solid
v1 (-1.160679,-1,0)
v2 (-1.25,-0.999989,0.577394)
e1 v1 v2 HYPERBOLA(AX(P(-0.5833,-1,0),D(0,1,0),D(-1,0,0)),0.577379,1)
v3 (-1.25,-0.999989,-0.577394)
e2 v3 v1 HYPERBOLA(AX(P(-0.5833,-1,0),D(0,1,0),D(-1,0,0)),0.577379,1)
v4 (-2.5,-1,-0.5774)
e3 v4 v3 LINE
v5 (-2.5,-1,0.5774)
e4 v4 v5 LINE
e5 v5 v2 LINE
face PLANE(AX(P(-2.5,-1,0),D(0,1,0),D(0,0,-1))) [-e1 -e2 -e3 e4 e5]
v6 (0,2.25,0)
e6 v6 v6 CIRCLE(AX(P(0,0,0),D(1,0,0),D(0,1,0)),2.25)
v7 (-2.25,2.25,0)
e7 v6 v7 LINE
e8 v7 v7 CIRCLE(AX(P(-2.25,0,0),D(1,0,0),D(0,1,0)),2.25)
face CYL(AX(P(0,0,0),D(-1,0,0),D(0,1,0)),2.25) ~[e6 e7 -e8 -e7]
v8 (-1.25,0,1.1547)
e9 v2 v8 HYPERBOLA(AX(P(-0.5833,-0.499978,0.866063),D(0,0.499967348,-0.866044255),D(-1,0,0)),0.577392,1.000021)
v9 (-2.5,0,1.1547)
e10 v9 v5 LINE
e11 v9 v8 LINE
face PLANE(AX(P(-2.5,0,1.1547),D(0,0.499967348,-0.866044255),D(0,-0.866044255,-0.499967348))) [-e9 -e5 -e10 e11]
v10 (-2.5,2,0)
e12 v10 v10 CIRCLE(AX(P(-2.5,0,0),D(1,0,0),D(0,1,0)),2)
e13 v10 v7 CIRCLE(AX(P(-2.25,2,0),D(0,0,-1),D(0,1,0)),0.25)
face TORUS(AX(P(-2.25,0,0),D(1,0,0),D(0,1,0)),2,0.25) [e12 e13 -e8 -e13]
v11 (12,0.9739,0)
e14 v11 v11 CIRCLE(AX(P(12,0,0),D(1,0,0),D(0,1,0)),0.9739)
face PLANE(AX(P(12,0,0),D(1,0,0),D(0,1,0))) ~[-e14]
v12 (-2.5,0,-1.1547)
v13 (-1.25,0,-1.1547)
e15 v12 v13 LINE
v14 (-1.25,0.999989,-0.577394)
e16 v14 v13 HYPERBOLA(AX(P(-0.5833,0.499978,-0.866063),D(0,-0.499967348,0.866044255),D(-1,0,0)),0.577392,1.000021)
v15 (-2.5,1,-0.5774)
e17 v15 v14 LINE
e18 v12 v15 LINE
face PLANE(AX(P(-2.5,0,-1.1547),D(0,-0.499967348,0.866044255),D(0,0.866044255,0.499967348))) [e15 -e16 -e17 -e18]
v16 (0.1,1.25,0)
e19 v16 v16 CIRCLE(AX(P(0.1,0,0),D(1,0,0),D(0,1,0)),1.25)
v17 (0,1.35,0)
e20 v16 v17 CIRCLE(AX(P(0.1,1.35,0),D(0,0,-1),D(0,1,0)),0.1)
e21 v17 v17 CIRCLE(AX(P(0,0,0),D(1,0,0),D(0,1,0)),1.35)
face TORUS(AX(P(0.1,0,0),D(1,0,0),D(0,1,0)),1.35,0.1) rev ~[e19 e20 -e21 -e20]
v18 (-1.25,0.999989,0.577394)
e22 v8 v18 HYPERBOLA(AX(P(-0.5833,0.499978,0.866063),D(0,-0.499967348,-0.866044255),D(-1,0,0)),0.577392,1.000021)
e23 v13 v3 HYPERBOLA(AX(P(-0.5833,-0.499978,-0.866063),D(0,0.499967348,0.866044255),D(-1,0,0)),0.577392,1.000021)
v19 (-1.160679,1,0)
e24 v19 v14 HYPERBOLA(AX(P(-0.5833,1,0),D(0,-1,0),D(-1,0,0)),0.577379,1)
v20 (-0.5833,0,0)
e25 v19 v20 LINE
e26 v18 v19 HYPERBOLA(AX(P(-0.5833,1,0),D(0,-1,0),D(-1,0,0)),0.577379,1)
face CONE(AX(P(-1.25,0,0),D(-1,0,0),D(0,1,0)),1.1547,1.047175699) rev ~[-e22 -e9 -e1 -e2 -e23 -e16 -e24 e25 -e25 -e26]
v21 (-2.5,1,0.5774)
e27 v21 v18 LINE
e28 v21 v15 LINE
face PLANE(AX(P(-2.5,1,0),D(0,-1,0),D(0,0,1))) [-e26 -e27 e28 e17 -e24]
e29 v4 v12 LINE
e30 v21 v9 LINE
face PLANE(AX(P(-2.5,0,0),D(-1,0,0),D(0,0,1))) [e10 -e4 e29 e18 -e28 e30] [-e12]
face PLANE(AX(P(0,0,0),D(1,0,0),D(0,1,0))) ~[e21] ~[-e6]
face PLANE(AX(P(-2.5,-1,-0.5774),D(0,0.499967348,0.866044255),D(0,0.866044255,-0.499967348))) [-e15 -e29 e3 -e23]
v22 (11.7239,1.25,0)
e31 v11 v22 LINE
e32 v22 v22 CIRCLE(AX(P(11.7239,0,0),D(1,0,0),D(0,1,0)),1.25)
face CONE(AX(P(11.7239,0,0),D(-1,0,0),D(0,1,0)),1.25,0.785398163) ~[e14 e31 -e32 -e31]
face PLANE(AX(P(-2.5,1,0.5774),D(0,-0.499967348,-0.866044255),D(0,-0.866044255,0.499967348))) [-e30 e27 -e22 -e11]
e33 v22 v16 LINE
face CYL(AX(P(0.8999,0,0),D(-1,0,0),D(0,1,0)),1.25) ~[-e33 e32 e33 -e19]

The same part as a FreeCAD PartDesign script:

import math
import FreeCAD as App
import Part
import Sketcher
from FreeCAD import Vector


def edges_at(feature, points):
    """Names of the edges that pass closest to the given points."""
    edges = feature.Shape.Edges
    near = lambda p: min(range(len(edges)), key=lambda i: edges[i].distToShape(Part.Vertex(*p))[0])
    return sorted({f"Edge{near(p) + 1}" for p in points})

doc = App.newDocument("Part")
body = doc.addObject("PartDesign::Body", "Body")

# Sketch on XY plane
sketch1 = body.newObject("Sketcher::SketchObject", "Sketch")
sketch1.AttachmentSupport = (doc.getObject("XY_Plane"), [""])
sketch1.MapMode = "FlatFace"
sketch1.addGeometry([
    Part.LineSegment(Vector(-1.2, 1.2, 0), Vector(-0.6, 0, 0)),  # 0
    Part.LineSegment(Vector(-0.6, 0, 0), Vector(12, 0, 0)),  # 1
    Part.LineSegment(Vector(12, 0, 0), Vector(12, 1.2, 0)),  # 2
    Part.LineSegment(Vector(12, 1.2, 0), Vector(0, 1.2, 0)),  # 3
    Part.LineSegment(Vector(0, 1.2, 0), Vector(0, 2.2, 0)),  # 4
    Part.LineSegment(Vector(0, 2.2, 0), Vector(-2.5, 2.2, 0)),  # 5
    Part.LineSegment(Vector(-2.5, 2.2, 0), Vector(-2.5, 1.2, 0)),  # 6
    Part.LineSegment(Vector(-2.5, 1.2, 0), Vector(-1.2, 1.2, 0)),  # 7
], False)
sketch1.addConstraint([
    Sketcher.Constraint("Coincident", 0, 2, 1, 1),
    Sketcher.Constraint("Coincident", 1, 2, 2, 1),
    Sketcher.Constraint("Coincident", 2, 2, 3, 1),
    Sketcher.Constraint("Coincident", 3, 2, 4, 1),
    Sketcher.Constraint("Coincident", 4, 2, 5, 1),
    Sketcher.Constraint("Coincident", 5, 2, 6, 1),
    Sketcher.Constraint("Coincident", 6, 2, 7, 1),
    Sketcher.Constraint("Coincident", 7, 2, 0, 1),
    Sketcher.Constraint("Horizontal", 1),
    Sketcher.Constraint("Vertical", 2),
    Sketcher.Constraint("Horizontal", 3),
    Sketcher.Constraint("Vertical", 4),
    Sketcher.Constraint("Horizontal", 5),
    Sketcher.Constraint("Vertical", 6),
    Sketcher.Constraint("Horizontal", 7),
    Sketcher.Constraint("PointOnObject", 0, 2, -1),
    Sketcher.Constraint("PointOnObject", 3, 2, -2),
    Sketcher.Constraint("Equal", 7, 2),
    Sketcher.Constraint("DistanceX", 3, 2, 3, 1, 12.0),
    Sketcher.Constraint("DistanceX", 5, 2, 5, 1, 2.5),
    Sketcher.Constraint("DistanceX", 7, 1, 7, 2, 1.25),
    Sketcher.Constraint("DistanceY", 4, 1, 4, 2, 1.0),
    Sketcher.Constraint("DistanceX", 1, 1, 1, 2, 12.5833),
    Sketcher.Constraint("DistanceY", 6, 2, 6, 1, 1.0953),
])
revolution = body.newObject("PartDesign::Revolution", "Revolution")
revolution.Profile = sketch1
revolution.ReferenceAxis = (sketch1, ["H_Axis"])
revolution.Angle = 360

# Sketch on YZ plane
sketch2 = body.newObject("Sketcher::SketchObject", "Sketch001")
sketch2.AttachmentSupport = (doc.getObject("YZ_Plane"), [""])
sketch2.MapMode = "FlatFace"
sketch2.AttachmentOffset = App.Placement(Vector(0, 0, -2.5), App.Rotation())
sketch2.addGeometry([
    Part.LineSegment(Vector(1, 0.6, 0), Vector(0, 1.2, 0)),  # 0
    Part.ArcOfCircle(Part.Circle(Vector(0, 0, 0), Vector(0, 0, 1), 1.2), math.radians(30), math.radians(90)),  # 1
    Part.ArcOfCircle(Part.Circle(Vector(0, 0, 0), Vector(0, 0, 1), 1.2), math.radians(90), math.radians(150)),  # 2
    Part.LineSegment(Vector(0, 1.2, 0), Vector(-1, 0.6, 0)),  # 3
    Part.ArcOfCircle(Part.Circle(Vector(0, 0, 0), Vector(0, 0, 1), 1.2), math.radians(-30), math.radians(30)),  # 4
    Part.LineSegment(Vector(1, 0.6, 0), Vector(1, -0.6, 0)),  # 5
    Part.LineSegment(Vector(-1, 0.6, 0), Vector(-1, -0.6, 0)),  # 6
    Part.ArcOfCircle(Part.Circle(Vector(0, 0, 0), Vector(0, 0, 1), 1.2), math.radians(150), math.radians(210)),  # 7
    Part.LineSegment(Vector(-1, -0.6, 0), Vector(0, -1.2, 0)),  # 8
    Part.ArcOfCircle(Part.Circle(Vector(0, 0, 0), Vector(0, 0, 1), 1.2), math.radians(-150), math.radians(-90)),  # 9
    Part.ArcOfCircle(Part.Circle(Vector(0, 0, 0), Vector(0, 0, 1), 1.2), math.radians(-90), math.radians(-30)),  # 10
    Part.LineSegment(Vector(0, -1.2, 0), Vector(1, -0.6, 0)),  # 11
], False)
sketch2.addConstraint([
    Sketcher.Constraint("Coincident", 0, 1, 1, 1),
    Sketcher.Constraint("Coincident", 1, 2, 0, 2),
    Sketcher.Constraint("Coincident", 2, 1, 3, 1),
    Sketcher.Constraint("Coincident", 3, 2, 2, 2),
    Sketcher.Constraint("Coincident", 4, 1, 5, 2),
    Sketcher.Constraint("Coincident", 5, 1, 4, 2),
    Sketcher.Constraint("Coincident", 6, 1, 7, 1),
    Sketcher.Constraint("Coincident", 7, 2, 6, 2),
    Sketcher.Constraint("Coincident", 8, 1, 9, 1),
    Sketcher.Constraint("Coincident", 9, 2, 8, 2),
    Sketcher.Constraint("Coincident", 10, 1, 11, 1),
    Sketcher.Constraint("Coincident", 11, 2, 10, 2),
    Sketcher.Constraint("Vertical", 5),
    Sketcher.Constraint("Vertical", 6),
    Sketcher.Constraint("Coincident", 1, 3, -1, 1),
    Sketcher.Constraint("Coincident", 2, 3, -1, 1),
    Sketcher.Constraint("Coincident", 4, 3, -1, 1),
    Sketcher.Constraint("Coincident", 7, 3, -1, 1),
    Sketcher.Constraint("Coincident", 9, 3, -1, 1),
    Sketcher.Constraint("Coincident", 10, 3, -1, 1),
    Sketcher.Constraint("Coincident", 2, 1, 1, 2),
    Sketcher.Constraint("Coincident", 5, 1, 0, 1),
    Sketcher.Constraint("Coincident", 6, 1, 3, 2),
    Sketcher.Constraint("Coincident", 8, 1, 7, 2),
    Sketcher.Constraint("Coincident", 10, 1, 9, 2),
    Sketcher.Constraint("PointOnObject", 1, 2, -2),
    Sketcher.Constraint("PointOnObject", 9, 2, -2),
    Sketcher.Constraint("Parallel", 0, 8),
    Sketcher.Constraint("Parallel", 3, 11),
    Sketcher.Constraint("DistanceX", -1, 1, 0, 1, 1.0),
    Sketcher.Constraint("Radius", 1, 1.1547),
])
pad1 = body.newObject("PartDesign::Pad", "Pad")
pad1.Profile = sketch2
pad1.Type = "UpToFirst"
doc.recompute()

fillet = body.newObject("PartDesign::Fillet", "Fillet")
fillet.Base = (pad1, edges_at(pad1, [(-2.5, -2.25, 0)]))
fillet.Radius = 0.25
doc.recompute()

chamfer = body.newObject("PartDesign::Chamfer", "Chamfer")
chamfer.Base = (fillet, edges_at(fillet, [(12, -1.25, 0)]))
chamfer.ChamferType = "Two distances"
chamfer.Size = 0.2761
chamfer.Size2 = 0.2761
doc.recompute()

fillet2 = body.newObject("PartDesign::Fillet", "Fillet001")
fillet2.Base = (chamfer, edges_at(chamfer, [(0, -1.25, 0)]))
fillet2.Radius = 0.1

doc.recompute()
